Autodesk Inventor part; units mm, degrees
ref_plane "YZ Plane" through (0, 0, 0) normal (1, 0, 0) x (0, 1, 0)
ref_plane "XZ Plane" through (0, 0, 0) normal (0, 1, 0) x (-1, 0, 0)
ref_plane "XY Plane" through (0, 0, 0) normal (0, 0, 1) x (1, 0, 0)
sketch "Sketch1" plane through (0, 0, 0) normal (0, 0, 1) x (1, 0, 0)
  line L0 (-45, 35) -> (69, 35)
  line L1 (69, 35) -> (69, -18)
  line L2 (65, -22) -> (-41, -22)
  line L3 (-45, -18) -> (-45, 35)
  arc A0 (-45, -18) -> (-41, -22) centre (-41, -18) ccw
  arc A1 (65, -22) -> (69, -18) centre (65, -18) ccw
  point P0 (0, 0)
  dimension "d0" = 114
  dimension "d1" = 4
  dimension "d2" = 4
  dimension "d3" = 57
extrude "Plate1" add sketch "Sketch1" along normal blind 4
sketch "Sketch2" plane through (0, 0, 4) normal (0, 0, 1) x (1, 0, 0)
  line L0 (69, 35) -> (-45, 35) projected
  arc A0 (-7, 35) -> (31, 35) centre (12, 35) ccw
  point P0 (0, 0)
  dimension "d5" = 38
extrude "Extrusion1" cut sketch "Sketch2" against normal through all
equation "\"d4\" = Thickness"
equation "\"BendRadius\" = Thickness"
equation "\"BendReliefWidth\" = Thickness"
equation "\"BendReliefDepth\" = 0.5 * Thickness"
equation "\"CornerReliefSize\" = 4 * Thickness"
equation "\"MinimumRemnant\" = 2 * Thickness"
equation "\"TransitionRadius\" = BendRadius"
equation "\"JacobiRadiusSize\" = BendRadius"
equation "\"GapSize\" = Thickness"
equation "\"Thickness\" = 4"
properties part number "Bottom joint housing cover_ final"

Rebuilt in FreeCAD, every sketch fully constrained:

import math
import FreeCAD as App
import Part
import Sketcher

V = App.Vector
Q = App.Units.Quantity

doc = App.newDocument("Part")
body = doc.addObject("PartDesign::Body", "Body")

# Sketch on XY plane
sketch1 = body.newObject("Sketcher::SketchObject", "Sketch")
sketch1.AttachmentSupport = (doc.getObject("XY_Plane"), [""])
sketch1.MapMode = "FlatFace"
sketch1.addGeometry([
    Part.LineSegment(V(69, 35, 0), V(-45, 35, 0)),  # 0
    Part.LineSegment(V(-45, 35, 0), V(-45, -18, 0)),  # 1
    Part.ArcOfCircle(Part.Circle(V(-41, -18, 0), V(0, 0, 1), 4), math.radians(180), math.radians(270)),  # 2
    Part.LineSegment(V(-41, -22, 0), V(65, -22, 0)),  # 3
    Part.ArcOfCircle(Part.Circle(V(65, -18, 0), V(0, 0, 1), 4), math.radians(-90), math.radians(0)),  # 4
    Part.LineSegment(V(69, -18, 0), V(69, 35, 0)),  # 5
], False)
sketch1.addConstraint([
    Sketcher.Constraint("Coincident", 0, 2, 1, 1),
    Sketcher.Constraint("Tangent", 1, 2, 2, 1),
    Sketcher.Constraint("Tangent", 2, 2, 3, 1),
    Sketcher.Constraint("Tangent", 3, 2, 4, 1),
    Sketcher.Constraint("Tangent", 4, 2, 5, 1),
    Sketcher.Constraint("Coincident", 5, 2, 0, 1),
    Sketcher.Constraint("Horizontal", 0),
    Sketcher.Constraint("Vertical", 1),
    Sketcher.Constraint("Horizontal", 3),
    Sketcher.Constraint("Vertical", 5),
    Sketcher.Constraint("Equal", 2, 4),
    Sketcher.Constraint("Radius", 2, Q("4 mm")),
    Sketcher.Constraint("DistanceX", 0, 2, 0, 1, Q("114 mm")),
    Sketcher.Constraint("DistanceY", 2, 2, 0, 2, Q("57 mm")),
    Sketcher.Constraint("DistanceX", 2, 3, -1, 1, Q("41 mm")),
    Sketcher.Constraint("DistanceY", 2, 3, -1, 1, Q("18 mm")),
])
pad1 = body.newObject("PartDesign::Pad", "Pad")
pad1.Profile = sketch1
pad1.Length = 4

# Sketch on XY plane
sketch2 = body.newObject("Sketcher::SketchObject", "Sketch001")
sketch2.AttachmentSupport = (doc.getObject("XY_Plane"), [""])
sketch2.MapMode = "FlatFace"
sketch2.AttachmentOffset = App.Placement(V(0, 0, 4), App.Rotation())
sketch2.addGeometry([
    Part.ArcOfCircle(Part.Circle(V(12, 35, 0), V(0, 0, 1), 19), math.radians(180), math.radians(360)),
    Part.LineSegment(V(31, 35, 0), V(-7, 35, 0)),
], False)
sketch2.addConstraint([
    Sketcher.Constraint("Coincident", 0, 1, 1, 2),
    Sketcher.Constraint("Coincident", 1, 1, 0, 2),
    Sketcher.Constraint("Horizontal", 1),
    Sketcher.Constraint("Radius", 0, Q("19 mm")),
    Sketcher.Constraint("DistanceX", -1, 1, 0, 3, Q("12 mm")),
    Sketcher.Constraint("DistanceY", -1, 1, 0, 3, Q("35 mm")),
    Sketcher.Constraint("DistanceY", -1, 1, 0, 1, Q("35 mm")),
])
pocket1 = body.newObject("PartDesign::Pocket", "Pocket")
pocket1.Profile = sketch2
pocket1.Type = "ThroughAll"

doc.recompute()
